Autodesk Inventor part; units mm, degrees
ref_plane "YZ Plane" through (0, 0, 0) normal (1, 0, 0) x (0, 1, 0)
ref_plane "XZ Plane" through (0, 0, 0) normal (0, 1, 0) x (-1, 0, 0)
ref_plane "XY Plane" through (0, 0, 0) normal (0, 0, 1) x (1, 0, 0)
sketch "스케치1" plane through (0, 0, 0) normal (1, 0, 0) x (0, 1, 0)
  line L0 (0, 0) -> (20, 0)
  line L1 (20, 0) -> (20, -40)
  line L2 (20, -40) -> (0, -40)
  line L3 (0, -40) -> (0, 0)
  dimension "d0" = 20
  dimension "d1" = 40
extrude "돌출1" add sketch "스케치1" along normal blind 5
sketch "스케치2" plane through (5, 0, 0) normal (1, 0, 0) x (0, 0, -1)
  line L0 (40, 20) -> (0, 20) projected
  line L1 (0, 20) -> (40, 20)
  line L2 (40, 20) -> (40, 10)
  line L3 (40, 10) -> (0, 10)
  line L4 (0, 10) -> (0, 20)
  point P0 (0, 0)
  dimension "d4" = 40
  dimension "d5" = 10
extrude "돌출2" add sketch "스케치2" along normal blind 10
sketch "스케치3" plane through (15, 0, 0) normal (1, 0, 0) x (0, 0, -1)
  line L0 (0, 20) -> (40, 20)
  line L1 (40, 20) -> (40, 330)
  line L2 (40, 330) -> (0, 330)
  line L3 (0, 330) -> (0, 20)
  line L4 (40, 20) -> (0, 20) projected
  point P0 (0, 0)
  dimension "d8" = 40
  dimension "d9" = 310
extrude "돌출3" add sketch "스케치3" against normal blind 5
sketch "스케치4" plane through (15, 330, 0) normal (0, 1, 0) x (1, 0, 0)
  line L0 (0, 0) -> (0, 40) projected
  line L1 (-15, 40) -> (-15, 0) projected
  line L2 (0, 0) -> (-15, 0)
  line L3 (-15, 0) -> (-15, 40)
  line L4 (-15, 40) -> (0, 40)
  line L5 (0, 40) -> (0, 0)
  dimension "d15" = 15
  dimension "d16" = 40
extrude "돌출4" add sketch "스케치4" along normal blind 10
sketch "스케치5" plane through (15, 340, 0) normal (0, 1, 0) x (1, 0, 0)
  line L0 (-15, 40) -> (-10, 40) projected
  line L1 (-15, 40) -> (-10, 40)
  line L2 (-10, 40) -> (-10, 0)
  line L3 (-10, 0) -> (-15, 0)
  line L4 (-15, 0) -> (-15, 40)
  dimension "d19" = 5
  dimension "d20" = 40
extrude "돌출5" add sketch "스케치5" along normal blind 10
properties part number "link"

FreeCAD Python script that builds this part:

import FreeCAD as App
import Part
import Sketcher

doc = App.newDocument("Part")
params = doc.addObject("Spreadsheet::Sheet", "Params")
for row, (alias, value) in enumerate([
    ("sketch1_width", "20 mm"),
    ("sketch1_height", "40 mm"),
    ("pad1_length", "5 mm"),
    ("sketch2_width", "10 mm"),
    ("sketch2_height", "40 mm"),
    ("pad2_length", "10 mm"),
    ("sketch3_width", "310 mm"),
    ("sketch3_height", "40 mm"),
    ("pad3_length", "5 mm"),
    ("sketch4_width", "15 mm"),
    ("sketch4_height", "40 mm"),
    ("pad4_length", "10 mm"),
    ("sketch5_width", "5 mm"),
    ("sketch5_height", "40 mm"),
    ("pad5_length", "10 mm"),
], start=1):
    params.set(f"A{row}", alias)
    params.set(f"B{row}", "=" + value)
    params.setAlias(f"B{row}", alias)

body = doc.addObject("PartDesign::Body", "Body")

sketch1 = body.newObject("Sketcher::SketchObject", "Sketch")
sketch1.AttachmentSupport = (doc.getObject("YZ_Plane"), [""])
sketch1.MapMode = "FlatFace"
sketch1.addGeometry([
    Part.LineSegment(App.Vector(20, 0, 0), App.Vector(0, 0, 0)),
    Part.LineSegment(App.Vector(0, 0, 0), App.Vector(0, -40, 0)),
    Part.LineSegment(App.Vector(0, -40, 0), App.Vector(20, -40, 0)),
    Part.LineSegment(App.Vector(20, -40, 0), App.Vector(20, 0, 0)),
], False)
sketch1.addConstraint([
    Sketcher.Constraint("Coincident", 0, 2, 1, 1),
    Sketcher.Constraint("Coincident", 1, 2, 2, 1),
    Sketcher.Constraint("Coincident", 2, 2, 3, 1),
    Sketcher.Constraint("Coincident", 3, 2, 0, 1),
    Sketcher.Constraint("Horizontal", 0),
    Sketcher.Constraint("Vertical", 1),
    Sketcher.Constraint("Horizontal", 2),
    Sketcher.Constraint("Vertical", 3),
    Sketcher.Constraint("Coincident", 0, 2, -1, 1),
    Sketcher.Constraint("DistanceX", 0, 2, 0, 1, 20.0),
    Sketcher.Constraint("DistanceY", 1, 2, 1, 1, 40.0),
])
sketch1.setExpression("Constraints[9]", "Params.sketch1_width")
sketch1.setExpression("Constraints[10]", "Params.sketch1_height")
pad1 = body.newObject("PartDesign::Pad", "Pad")
pad1.Profile = sketch1
pad1.setExpression("Length", "Params.pad1_length")

sketch2 = body.newObject("Sketcher::SketchObject", "Sketch001")
sketch2.AttachmentSupport = (doc.getObject("YZ_Plane"), [""])
sketch2.MapMode = "FlatFace"
sketch2.AttachmentOffset = App.Placement(App.Vector(0, 0, 5), App.Rotation())
sketch2.addGeometry([
    Part.LineSegment(App.Vector(10, -40, 0), App.Vector(20, -40, 0)),
    Part.LineSegment(App.Vector(20, -40, 0), App.Vector(20, 0, 0)),
    Part.LineSegment(App.Vector(20, 0, 0), App.Vector(10, 0, 0)),
    Part.LineSegment(App.Vector(10, 0, 0), App.Vector(10, -40, 0)),
], False)
sketch2.addConstraint([
    Sketcher.Constraint("Coincident", 0, 2, 1, 1),
    Sketcher.Constraint("Coincident", 1, 2, 2, 1),
    Sketcher.Constraint("Coincident", 2, 2, 3, 1),
    Sketcher.Constraint("Coincident", 3, 2, 0, 1),
    Sketcher.Constraint("Horizontal", 0),
    Sketcher.Constraint("Vertical", 1),
    Sketcher.Constraint("Horizontal", 2),
    Sketcher.Constraint("Vertical", 3),
    Sketcher.Constraint("PointOnObject", 1, 2, -1),
    Sketcher.Constraint("DistanceX", 0, 1, 0, 2, 10.0),
    Sketcher.Constraint("DistanceY", 1, 1, 1, 2, 40.0),
    Sketcher.Constraint("DistanceX", -1, 1, 2, 2, 10.0),
])
sketch2.setExpression("Constraints[9]", "Params.sketch2_width")
sketch2.setExpression("Constraints[10]", "Params.sketch2_height")
pad2 = body.newObject("PartDesign::Pad", "Pad001")
pad2.Profile = sketch2
pad2.setExpression("Length", "Params.pad2_length")

sketch3 = body.newObject("Sketcher::SketchObject", "Sketch002")
sketch3.AttachmentSupport = (doc.getObject("YZ_Plane"), [""])
sketch3.MapMode = "FlatFace"
sketch3.AttachmentOffset = App.Placement(App.Vector(0, 0, 15), App.Rotation())
sketch3.addGeometry([
    Part.LineSegment(App.Vector(330, 0, 0), App.Vector(20, 0, 0)),
    Part.LineSegment(App.Vector(20, 0, 0), App.Vector(20, -40, 0)),
    Part.LineSegment(App.Vector(20, -40, 0), App.Vector(330, -40, 0)),
    Part.LineSegment(App.Vector(330, -40, 0), App.Vector(330, 0, 0)),
], False)
sketch3.addConstraint([
    Sketcher.Constraint("Coincident", 0, 2, 1, 1),
    Sketcher.Constraint("Coincident", 1, 2, 2, 1),
    Sketcher.Constraint("Coincident", 2, 2, 3, 1),
    Sketcher.Constraint("Coincident", 3, 2, 0, 1),
    Sketcher.Constraint("Horizontal", 0),
    Sketcher.Constraint("Vertical", 1),
    Sketcher.Constraint("Horizontal", 2),
    Sketcher.Constraint("Vertical", 3),
    Sketcher.Constraint("PointOnObject", 0, 2, -1),
    Sketcher.Constraint("DistanceX", 0, 2, 0, 1, 310.0),
    Sketcher.Constraint("DistanceY", 1, 2, 1, 1, 40.0),
    Sketcher.Constraint("DistanceX", -1, 1, 0, 2, 20.0),
])
sketch3.setExpression("Constraints[9]", "Params.sketch3_width")
sketch3.setExpression("Constraints[10]", "Params.sketch3_height")
pad3 = body.newObject("PartDesign::Pad", "Pad002")
pad3.Profile = sketch3
pad3.setExpression("Length", "Params.pad3_length")
pad3.Reversed = True

sketch4 = body.newObject("Sketcher::SketchObject", "Sketch003")
sketch4.AttachmentSupport = (doc.getObject("XZ_Plane"), [""])
sketch4.MapMode = "FlatFace"
sketch4.AttachmentOffset = App.Placement(App.Vector(0, 0, -330), App.Rotation())
sketch4.addGeometry([
    Part.LineSegment(App.Vector(0, 0, 0), App.Vector(15, 0, 0)),
    Part.LineSegment(App.Vector(15, 0, 0), App.Vector(15, -40, 0)),
    Part.LineSegment(App.Vector(15, -40, 0), App.Vector(0, -40, 0)),
    Part.LineSegment(App.Vector(0, -40, 0), App.Vector(0, 0, 0)),
], False)
sketch4.addConstraint([
    Sketcher.Constraint("Coincident", 0, 2, 1, 1),
    Sketcher.Constraint("Coincident", 1, 2, 2, 1),
    Sketcher.Constraint("Coincident", 2, 2, 3, 1),
    Sketcher.Constraint("Coincident", 3, 2, 0, 1),
    Sketcher.Constraint("Horizontal", 0),
    Sketcher.Constraint("Vertical", 1),
    Sketcher.Constraint("Horizontal", 2),
    Sketcher.Constraint("Vertical", 3),
    Sketcher.Constraint("Coincident", 3, 2, -1, 1),
    Sketcher.Constraint("DistanceX", 0, 1, 0, 2, 15.0),
    Sketcher.Constraint("DistanceY", 1, 2, 1, 1, 40.0),
])
sketch4.setExpression("Constraints[9]", "Params.sketch4_width")
sketch4.setExpression("Constraints[10]", "Params.sketch4_height")
pad4 = body.newObject("PartDesign::Pad", "Pad003")
pad4.Profile = sketch4
pad4.setExpression("Length", "Params.pad4_length")
pad4.Reversed = True

sketch5 = body.newObject("Sketcher::SketchObject", "Sketch004")
sketch5.AttachmentSupport = (doc.getObject("XZ_Plane"), [""])
sketch5.MapMode = "FlatFace"
sketch5.AttachmentOffset = App.Placement(App.Vector(0, 0, -340), App.Rotation())
sketch5.addGeometry([
    Part.LineSegment(App.Vector(5, -40, 0), App.Vector(0, -40, 0)),
    Part.LineSegment(App.Vector(0, -40, 0), App.Vector(0, 0, 0)),
    Part.LineSegment(App.Vector(0, 0, 0), App.Vector(5, 0, 0)),
    Part.LineSegment(App.Vector(5, 0, 0), App.Vector(5, -40, 0)),
], False)
sketch5.addConstraint([
    Sketcher.Constraint("Coincident", 0, 2, 1, 1),
    Sketcher.Constraint("Coincident", 1, 2, 2, 1),
    Sketcher.Constraint("Coincident", 2, 2, 3, 1),
    Sketcher.Constraint("Coincident", 3, 2, 0, 1),
    Sketcher.Constraint("Horizontal", 0),
    Sketcher.Constraint("Vertical", 1),
    Sketcher.Constraint("Horizontal", 2),
    Sketcher.Constraint("Vertical", 3),
    Sketcher.Constraint("Coincident", 1, 2, -1, 1),
    Sketcher.Constraint("DistanceX", 0, 2, 0, 1, 5.0),
    Sketcher.Constraint("DistanceY", 1, 1, 1, 2, 40.0),
])
sketch5.setExpression("Constraints[9]", "Params.sketch5_width")
sketch5.setExpression("Constraints[10]", "Params.sketch5_height")
pad5 = body.newObject("PartDesign::Pad", "Pad004")
pad5.Profile = sketch5
pad5.setExpression("Length", "Params.pad5_length")
pad5.Reversed = True

doc.recompute()
